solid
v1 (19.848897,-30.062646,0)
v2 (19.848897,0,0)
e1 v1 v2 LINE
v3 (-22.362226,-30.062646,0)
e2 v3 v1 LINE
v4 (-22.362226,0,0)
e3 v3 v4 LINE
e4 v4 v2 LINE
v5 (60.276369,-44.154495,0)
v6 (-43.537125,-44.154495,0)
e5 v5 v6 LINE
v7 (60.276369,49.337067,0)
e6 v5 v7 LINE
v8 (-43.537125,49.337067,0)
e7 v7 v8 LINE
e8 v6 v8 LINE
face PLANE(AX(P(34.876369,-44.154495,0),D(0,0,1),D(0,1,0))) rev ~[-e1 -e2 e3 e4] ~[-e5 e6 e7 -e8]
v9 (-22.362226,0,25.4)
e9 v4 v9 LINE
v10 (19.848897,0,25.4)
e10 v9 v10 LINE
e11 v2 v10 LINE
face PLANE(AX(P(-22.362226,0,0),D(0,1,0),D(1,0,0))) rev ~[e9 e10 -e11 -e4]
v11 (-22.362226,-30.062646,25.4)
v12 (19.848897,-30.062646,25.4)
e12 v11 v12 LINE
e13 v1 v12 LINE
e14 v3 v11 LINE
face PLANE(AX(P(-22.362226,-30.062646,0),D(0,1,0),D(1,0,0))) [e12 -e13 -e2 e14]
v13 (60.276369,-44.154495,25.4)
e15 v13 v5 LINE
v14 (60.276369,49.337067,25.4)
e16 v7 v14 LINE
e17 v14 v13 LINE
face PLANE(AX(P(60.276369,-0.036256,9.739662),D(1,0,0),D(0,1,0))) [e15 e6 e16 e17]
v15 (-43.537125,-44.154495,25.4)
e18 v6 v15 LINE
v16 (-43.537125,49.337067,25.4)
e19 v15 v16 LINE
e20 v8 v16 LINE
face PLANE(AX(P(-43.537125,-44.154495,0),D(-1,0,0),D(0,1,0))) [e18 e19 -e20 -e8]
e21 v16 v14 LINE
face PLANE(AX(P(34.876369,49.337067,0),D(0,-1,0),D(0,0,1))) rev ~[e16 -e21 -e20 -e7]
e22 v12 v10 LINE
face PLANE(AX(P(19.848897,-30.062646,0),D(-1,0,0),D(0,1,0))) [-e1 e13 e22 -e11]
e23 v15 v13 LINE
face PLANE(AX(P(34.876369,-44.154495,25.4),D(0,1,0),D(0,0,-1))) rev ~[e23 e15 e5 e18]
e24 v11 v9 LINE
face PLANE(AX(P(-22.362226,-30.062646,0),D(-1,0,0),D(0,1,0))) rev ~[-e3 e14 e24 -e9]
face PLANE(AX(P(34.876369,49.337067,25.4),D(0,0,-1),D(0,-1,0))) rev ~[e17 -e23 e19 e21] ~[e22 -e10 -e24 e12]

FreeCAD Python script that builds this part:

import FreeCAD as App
import Part
import Sketcher
Q = App.Units.Quantity


def add_polygon(sketch, points):
    """Adds a closed chain of lines whose ends are joined by coincident constraints."""
    first, n = sketch.GeometryCount, len(points)
    for a, b in zip(points, points[1:] + points[:1]):
        sketch.addGeometry(Part.LineSegment(App.Vector(*a, 0), App.Vector(*b, 0)), False)
    for i in range(n):
        sketch.addConstraint(Sketcher.Constraint("Coincident", first + i, 2, first + (i + 1) % n, 1))

doc = App.newDocument("Part")
body = doc.addObject("PartDesign::Body", "Body")

# Sketch on XY plane
sketch1 = body.newObject("Sketcher::SketchObject", "Sketch")
sketch1.AttachmentSupport = (doc.getObject("XY_Plane"), [""])
sketch1.MapMode = "FlatFace"
add_polygon(sketch1, [(-43.537125, 49.337067), (-43.537125, -44.154495), (34.876369, -44.154495), (34.876369, 49.337067)])  # lines 0-3
add_polygon(sketch1, [(19.848897, -30.062646), (-22.362226, -30.062646), (-22.362226, 0), (19.848897, 0)])  # lines 4-7
sketch1.addConstraint([
    Sketcher.Constraint("Vertical", 0),
    Sketcher.Constraint("Horizontal", 1),
    Sketcher.Constraint("Vertical", 2),
    Sketcher.Constraint("Horizontal", 3),
    Sketcher.Constraint("Horizontal", 4),
    Sketcher.Constraint("Vertical", 5),
    Sketcher.Constraint("Horizontal", 6),
    Sketcher.Constraint("Vertical", 7),
    Sketcher.Constraint("PointOnObject", 5, 2, -1),
    Sketcher.Constraint("DistanceY", 0, 2, 0, 1, Q("93.491562 mm")),
    Sketcher.Constraint("DistanceX", 0, 2, 4, 2, Q("21.1749 mm")),
    Sketcher.Constraint("DistanceX", 1, 1, 1, 2, Q("78.413494 mm")),
    Sketcher.Constraint("DistanceX", 4, 2, 4, 1, Q("42.211123 mm")),
    Sketcher.Constraint("DistanceY", 5, 1, 5, 2, Q("30.062646 mm")),
    Sketcher.Constraint("DistanceX", -1, 1, 1, 2, Q("34.876369 mm")),
    Sketcher.Constraint("DistanceY", 0, 2, 4, 2, Q("14.091849 mm")),
])
pad1 = body.newObject("PartDesign::Pad", "Pad")
pad1.Profile = sketch1
pad1.Length = Q("1 in")

# Sketch on YZ plane
sketch2 = body.newObject("Sketcher::SketchObject", "Sketch001")
sketch2.AttachmentSupport = (doc.getObject("YZ_Plane"), [""])
sketch2.MapMode = "FlatFace"
sketch2.AttachmentOffset = App.Placement(App.Vector(0, 0, 34.876369), App.Rotation())
add_polygon(sketch2, [(49.337067, 0), (49.337067, 25.4), (-44.154495, 25.4), (-44.154495, 0)])  # lines 0-3
sketch2.addConstraint([
    Sketcher.Constraint("Vertical", 0),
    Sketcher.Constraint("Horizontal", 1),
    Sketcher.Constraint("Vertical", 2),
    Sketcher.Constraint("Horizontal", 3),
    Sketcher.Constraint("PointOnObject", 2, 2, -1),
    Sketcher.Constraint("DistanceY", 0, 1, 0, 2, Q("1 in")),
    Sketcher.Constraint("DistanceX", 1, 2, 1, 1, Q("93.491562 mm")),
    Sketcher.Constraint("DistanceX", -1, 1, 0, 2, Q("49.337067 mm")),
])
pad2 = body.newObject("PartDesign::Pad", "Pad001")
pad2.Profile = sketch2
pad2.Length = Q("1 in")

doc.recompute()
